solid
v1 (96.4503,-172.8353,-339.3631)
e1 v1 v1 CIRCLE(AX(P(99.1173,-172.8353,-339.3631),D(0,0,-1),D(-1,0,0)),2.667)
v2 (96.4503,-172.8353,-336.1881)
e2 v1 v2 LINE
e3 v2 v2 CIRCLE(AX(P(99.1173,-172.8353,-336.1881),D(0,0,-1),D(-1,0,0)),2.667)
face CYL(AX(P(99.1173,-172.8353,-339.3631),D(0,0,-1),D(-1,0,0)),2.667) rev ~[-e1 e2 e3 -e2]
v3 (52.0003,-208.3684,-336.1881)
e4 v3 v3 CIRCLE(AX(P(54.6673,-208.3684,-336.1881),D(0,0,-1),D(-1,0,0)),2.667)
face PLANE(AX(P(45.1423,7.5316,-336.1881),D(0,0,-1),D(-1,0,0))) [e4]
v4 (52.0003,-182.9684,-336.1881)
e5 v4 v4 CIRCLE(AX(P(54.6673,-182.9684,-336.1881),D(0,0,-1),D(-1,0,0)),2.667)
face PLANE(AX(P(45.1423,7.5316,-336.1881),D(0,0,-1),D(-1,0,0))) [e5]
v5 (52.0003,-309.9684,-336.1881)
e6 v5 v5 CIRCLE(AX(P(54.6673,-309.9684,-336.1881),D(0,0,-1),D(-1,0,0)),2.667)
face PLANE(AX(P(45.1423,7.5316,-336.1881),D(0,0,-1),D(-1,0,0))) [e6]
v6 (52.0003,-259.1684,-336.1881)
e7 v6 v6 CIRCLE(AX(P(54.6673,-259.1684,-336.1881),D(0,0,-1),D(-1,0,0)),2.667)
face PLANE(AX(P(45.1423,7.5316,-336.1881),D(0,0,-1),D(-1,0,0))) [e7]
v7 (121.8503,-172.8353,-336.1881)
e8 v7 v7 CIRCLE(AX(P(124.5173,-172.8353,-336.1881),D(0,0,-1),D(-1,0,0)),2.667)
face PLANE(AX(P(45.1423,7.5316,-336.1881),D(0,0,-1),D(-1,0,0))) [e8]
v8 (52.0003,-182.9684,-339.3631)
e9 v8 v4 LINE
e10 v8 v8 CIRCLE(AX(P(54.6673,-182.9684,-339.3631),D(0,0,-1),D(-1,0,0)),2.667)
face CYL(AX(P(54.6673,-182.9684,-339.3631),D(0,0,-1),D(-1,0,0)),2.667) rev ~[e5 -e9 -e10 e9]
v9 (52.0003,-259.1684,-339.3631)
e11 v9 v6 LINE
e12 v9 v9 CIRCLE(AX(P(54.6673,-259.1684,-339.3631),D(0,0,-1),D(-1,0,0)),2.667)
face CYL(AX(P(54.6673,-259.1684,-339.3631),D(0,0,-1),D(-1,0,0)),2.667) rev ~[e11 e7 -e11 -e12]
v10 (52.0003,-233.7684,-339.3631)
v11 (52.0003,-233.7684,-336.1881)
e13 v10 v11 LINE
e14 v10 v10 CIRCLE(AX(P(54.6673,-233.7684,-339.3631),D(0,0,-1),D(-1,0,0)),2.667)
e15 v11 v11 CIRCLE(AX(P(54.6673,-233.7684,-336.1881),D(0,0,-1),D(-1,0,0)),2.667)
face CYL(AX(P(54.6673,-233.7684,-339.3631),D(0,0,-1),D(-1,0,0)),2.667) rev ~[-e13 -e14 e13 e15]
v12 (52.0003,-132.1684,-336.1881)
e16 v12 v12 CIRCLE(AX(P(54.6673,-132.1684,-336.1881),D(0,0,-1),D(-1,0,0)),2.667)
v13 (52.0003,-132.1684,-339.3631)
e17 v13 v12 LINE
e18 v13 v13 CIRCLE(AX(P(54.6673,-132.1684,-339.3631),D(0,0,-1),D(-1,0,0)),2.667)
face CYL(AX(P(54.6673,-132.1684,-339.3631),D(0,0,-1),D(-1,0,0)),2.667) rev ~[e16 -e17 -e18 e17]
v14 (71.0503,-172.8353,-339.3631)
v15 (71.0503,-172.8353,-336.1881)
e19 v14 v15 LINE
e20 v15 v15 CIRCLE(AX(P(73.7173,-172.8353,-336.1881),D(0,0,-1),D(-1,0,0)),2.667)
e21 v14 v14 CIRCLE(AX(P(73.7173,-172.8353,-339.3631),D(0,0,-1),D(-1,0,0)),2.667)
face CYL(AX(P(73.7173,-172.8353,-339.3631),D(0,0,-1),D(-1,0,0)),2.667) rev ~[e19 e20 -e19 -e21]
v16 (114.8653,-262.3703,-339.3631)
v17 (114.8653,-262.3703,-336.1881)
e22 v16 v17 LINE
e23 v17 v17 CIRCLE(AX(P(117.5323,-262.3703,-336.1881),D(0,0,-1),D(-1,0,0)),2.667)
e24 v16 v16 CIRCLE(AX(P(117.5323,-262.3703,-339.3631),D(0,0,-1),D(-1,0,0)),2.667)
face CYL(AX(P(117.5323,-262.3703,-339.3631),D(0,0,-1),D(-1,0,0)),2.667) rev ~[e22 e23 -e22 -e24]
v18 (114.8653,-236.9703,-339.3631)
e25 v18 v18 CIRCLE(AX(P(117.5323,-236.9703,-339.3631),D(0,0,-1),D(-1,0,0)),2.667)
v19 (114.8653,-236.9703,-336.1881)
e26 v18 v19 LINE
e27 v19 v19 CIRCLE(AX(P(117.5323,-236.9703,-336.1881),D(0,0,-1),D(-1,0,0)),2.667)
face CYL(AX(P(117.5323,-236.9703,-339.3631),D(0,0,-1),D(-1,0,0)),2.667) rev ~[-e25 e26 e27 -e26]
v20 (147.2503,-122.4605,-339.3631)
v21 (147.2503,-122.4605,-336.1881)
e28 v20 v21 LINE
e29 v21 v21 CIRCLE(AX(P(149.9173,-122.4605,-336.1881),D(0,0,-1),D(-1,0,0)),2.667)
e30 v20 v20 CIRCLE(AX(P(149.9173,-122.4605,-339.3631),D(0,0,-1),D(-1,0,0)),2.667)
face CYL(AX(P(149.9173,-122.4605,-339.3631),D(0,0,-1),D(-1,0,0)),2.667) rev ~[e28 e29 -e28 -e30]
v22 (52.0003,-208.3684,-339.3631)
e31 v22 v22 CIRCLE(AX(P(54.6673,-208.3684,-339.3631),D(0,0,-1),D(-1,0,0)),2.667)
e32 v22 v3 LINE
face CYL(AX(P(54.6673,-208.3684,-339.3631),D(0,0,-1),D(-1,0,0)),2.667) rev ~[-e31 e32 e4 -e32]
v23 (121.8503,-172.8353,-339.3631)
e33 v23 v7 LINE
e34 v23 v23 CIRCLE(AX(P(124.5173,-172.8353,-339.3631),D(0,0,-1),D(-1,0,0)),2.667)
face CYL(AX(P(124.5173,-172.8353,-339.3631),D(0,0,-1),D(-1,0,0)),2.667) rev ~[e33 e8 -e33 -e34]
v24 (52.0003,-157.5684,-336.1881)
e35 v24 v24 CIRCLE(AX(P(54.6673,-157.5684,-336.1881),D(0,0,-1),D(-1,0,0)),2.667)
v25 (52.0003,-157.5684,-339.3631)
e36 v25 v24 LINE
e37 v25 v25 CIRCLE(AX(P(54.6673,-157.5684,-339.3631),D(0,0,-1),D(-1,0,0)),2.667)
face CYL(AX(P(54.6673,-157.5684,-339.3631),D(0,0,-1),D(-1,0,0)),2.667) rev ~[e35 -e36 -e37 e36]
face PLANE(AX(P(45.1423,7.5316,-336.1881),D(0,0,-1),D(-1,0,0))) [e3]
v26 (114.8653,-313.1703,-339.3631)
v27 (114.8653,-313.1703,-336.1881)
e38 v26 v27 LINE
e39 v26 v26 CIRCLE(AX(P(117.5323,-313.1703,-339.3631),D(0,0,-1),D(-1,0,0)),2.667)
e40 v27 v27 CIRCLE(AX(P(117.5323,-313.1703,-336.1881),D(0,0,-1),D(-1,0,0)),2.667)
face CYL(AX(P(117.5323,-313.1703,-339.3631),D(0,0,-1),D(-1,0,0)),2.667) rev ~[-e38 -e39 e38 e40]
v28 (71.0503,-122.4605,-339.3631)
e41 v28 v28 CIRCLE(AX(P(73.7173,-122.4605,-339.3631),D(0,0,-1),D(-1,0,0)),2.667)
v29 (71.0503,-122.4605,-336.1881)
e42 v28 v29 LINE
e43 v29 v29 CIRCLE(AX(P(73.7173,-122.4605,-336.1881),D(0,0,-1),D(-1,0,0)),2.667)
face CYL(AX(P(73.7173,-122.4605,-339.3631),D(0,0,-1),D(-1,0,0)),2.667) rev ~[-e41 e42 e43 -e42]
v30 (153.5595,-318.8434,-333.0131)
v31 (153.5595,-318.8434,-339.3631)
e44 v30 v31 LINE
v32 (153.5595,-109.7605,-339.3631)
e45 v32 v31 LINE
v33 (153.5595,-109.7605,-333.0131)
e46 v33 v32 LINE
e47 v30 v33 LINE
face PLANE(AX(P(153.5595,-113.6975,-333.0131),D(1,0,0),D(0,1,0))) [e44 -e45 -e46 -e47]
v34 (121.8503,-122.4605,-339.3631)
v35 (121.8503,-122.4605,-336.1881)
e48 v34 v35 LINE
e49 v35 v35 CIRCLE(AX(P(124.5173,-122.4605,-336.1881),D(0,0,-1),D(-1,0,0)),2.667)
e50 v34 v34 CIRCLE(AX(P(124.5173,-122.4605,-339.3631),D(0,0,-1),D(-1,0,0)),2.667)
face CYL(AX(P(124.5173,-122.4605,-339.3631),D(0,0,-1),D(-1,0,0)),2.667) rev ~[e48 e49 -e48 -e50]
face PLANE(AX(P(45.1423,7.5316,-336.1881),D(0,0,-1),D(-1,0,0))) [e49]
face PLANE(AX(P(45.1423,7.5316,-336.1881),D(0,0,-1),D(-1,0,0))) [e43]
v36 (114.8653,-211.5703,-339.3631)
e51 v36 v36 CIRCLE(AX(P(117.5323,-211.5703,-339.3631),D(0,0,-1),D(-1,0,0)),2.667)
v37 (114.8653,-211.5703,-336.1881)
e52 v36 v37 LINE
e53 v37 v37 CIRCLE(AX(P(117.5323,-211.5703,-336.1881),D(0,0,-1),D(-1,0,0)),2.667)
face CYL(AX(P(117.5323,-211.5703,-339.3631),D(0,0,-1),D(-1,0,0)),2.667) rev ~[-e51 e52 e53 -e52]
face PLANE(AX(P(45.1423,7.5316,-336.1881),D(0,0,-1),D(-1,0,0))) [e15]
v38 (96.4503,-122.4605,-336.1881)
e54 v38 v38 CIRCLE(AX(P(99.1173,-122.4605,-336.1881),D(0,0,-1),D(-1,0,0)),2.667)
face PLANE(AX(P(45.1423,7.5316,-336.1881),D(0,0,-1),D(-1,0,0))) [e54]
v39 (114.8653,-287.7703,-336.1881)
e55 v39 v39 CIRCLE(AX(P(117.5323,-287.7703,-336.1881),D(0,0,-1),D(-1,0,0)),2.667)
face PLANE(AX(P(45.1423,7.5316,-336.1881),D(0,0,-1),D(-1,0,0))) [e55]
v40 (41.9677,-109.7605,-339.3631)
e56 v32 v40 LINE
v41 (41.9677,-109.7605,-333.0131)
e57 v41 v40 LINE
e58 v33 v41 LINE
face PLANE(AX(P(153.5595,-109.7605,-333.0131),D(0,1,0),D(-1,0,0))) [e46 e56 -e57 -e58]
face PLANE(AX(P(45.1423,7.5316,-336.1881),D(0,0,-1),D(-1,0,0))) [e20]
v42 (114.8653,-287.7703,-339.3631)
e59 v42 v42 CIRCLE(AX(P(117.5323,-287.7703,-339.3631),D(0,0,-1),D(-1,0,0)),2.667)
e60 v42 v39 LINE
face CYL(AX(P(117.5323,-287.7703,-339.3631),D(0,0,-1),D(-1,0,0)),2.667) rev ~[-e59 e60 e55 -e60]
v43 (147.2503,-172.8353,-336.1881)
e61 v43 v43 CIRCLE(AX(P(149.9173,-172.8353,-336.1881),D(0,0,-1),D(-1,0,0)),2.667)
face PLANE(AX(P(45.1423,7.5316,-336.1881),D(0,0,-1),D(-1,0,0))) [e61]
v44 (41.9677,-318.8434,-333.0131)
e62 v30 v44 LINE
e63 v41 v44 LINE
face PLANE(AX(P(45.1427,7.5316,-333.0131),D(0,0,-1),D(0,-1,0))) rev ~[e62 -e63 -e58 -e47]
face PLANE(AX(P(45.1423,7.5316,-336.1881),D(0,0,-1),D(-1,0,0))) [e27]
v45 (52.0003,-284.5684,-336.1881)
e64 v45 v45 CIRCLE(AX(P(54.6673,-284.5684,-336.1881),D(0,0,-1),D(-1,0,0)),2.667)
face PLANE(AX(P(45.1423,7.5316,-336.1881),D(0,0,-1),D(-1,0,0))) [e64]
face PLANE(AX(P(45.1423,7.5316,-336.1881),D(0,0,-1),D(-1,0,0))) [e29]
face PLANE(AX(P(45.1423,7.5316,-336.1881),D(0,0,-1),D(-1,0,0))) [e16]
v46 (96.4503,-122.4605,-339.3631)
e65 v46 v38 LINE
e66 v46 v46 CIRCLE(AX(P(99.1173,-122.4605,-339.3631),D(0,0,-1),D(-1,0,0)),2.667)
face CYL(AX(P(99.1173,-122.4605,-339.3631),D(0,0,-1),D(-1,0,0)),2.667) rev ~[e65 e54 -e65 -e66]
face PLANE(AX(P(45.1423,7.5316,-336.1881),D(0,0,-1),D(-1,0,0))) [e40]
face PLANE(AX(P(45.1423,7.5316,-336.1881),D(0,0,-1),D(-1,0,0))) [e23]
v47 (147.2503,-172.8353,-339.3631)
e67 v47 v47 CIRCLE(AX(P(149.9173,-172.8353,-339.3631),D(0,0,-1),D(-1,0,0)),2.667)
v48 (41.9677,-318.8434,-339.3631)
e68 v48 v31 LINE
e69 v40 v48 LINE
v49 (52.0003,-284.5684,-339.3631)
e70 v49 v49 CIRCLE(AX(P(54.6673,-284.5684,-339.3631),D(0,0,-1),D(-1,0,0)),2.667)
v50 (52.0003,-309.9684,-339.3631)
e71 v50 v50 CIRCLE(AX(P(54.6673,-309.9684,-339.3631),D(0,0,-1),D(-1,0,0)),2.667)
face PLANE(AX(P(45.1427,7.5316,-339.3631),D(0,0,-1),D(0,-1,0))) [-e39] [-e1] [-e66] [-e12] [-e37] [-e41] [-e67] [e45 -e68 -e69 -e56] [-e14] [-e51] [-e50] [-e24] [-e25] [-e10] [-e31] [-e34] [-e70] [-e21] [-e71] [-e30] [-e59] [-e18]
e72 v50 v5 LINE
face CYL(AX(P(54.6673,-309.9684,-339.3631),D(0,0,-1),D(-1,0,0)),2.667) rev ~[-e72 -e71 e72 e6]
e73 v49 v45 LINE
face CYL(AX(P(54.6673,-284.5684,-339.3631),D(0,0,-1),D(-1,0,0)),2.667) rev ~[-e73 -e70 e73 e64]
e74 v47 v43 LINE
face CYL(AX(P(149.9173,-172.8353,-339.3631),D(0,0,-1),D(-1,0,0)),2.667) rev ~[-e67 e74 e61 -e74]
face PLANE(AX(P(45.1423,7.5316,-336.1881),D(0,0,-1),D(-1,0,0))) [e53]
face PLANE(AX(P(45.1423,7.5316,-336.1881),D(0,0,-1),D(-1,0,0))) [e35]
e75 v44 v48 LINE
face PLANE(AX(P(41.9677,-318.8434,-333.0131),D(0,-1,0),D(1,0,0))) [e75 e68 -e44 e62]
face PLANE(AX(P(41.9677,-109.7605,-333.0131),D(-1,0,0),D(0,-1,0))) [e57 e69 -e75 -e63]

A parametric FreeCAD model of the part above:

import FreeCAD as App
import Part
import Sketcher

V = App.Vector
Q = App.Units.Quantity

doc = App.newDocument("Part")
body = doc.addObject("PartDesign::Body", "Body")

# Sketch on XY plane
sketch1 = body.newObject("Sketcher::SketchObject", "Sketch")
sketch1.AttachmentSupport = (doc.getObject("XY_Plane"), [""])
sketch1.MapMode = "FlatFace"
sketch1.AttachmentOffset = App.Placement(V(0, 0, -333.0131), App.Rotation())
sketch1.addGeometry(Part.LineSegment(V(42, -319, 0), V(42, -110, 0)), False)
sketch1.addGeometry(Part.LineSegment(V(42, -110, 0), V(154, -110, 0)), False)
sketch1.addGeometry(Part.LineSegment(V(154, -110, 0), V(154, -319, 0)), False)
sketch1.addGeometry(Part.LineSegment(V(154, -319, 0), V(42, -319, 0)), False)
sketch1.addConstraint(Sketcher.Constraint("Coincident", 0, 2, 1, 1))
sketch1.addConstraint(Sketcher.Constraint("Coincident", 1, 2, 2, 1))
sketch1.addConstraint(Sketcher.Constraint("Coincident", 2, 2, 3, 1))
sketch1.addConstraint(Sketcher.Constraint("Coincident", 3, 2, 0, 1))
sketch1.addConstraint(Sketcher.Constraint("Vertical", 0))
sketch1.addConstraint(Sketcher.Constraint("Horizontal", 1))
sketch1.addConstraint(Sketcher.Constraint("Vertical", 2))
sketch1.addConstraint(Sketcher.Constraint("Horizontal", 3))
sketch1.addConstraint(Sketcher.Constraint("DistanceY", 0, 1, 0, 2, Q("8.2316 in")))
sketch1.addConstraint(Sketcher.Constraint("DistanceX", 1, 1, 1, 2, 111.5918))
sketch1.addConstraint(Sketcher.Constraint("DistanceY", 2, 2, -1, 1, Q("12.5529 in")))
sketch1.addConstraint(Sketcher.Constraint("DistanceX", -1, 1, 0, 2, 41.9677))
pad1 = body.newObject("PartDesign::Pad", "Pad")
pad1.Profile = sketch1
pad1.Length = Q("0.25 in")
pad1.Reversed = True

# Sketch on XY plane
sketch2 = body.newObject("Sketcher::SketchObject", "Sketch001")
sketch2.AttachmentSupport = (doc.getObject("XY_Plane"), [""])
sketch2.MapMode = "FlatFace"
sketch2.AttachmentOffset = App.Placement(V(0, 0, -339.3631), App.Rotation())
sketch2.addGeometry(Part.Circle(V(54.7, -310, 0), V(0, 0, 1), 2.7), False)
sketch2.addGeometry(Part.Circle(V(54.7, -284.6, 0), V(0, 0, 1), 2.7), False)
sketch2.addGeometry(Part.Circle(V(54.7, -259.2, 0), V(0, 0, 1), 2.7), False)
sketch2.addGeometry(Part.Circle(V(54.7, -233.8, 0), V(0, 0, 1), 2.7), False)
sketch2.addGeometry(Part.Circle(V(54.7, -208.4, 0), V(0, 0, 1), 2.7), False)
sketch2.addGeometry(Part.Circle(V(54.7, -183, 0), V(0, 0, 1), 2.7), False)
sketch2.addGeometry(Part.Circle(V(54.7, -157.6, 0), V(0, 0, 1), 2.7), False)
sketch2.addGeometry(Part.Circle(V(54.7, -132.2, 0), V(0, 0, 1), 2.7), False)
sketch2.addGeometry(Part.Circle(V(117.5, -211.6, 0), V(0, 0, 1), 2.7), False)
sketch2.addGeometry(Part.Circle(V(117.5, -237, 0), V(0, 0, 1), 2.7), False)
sketch2.addGeometry(Part.Circle(V(117.5, -262.4, 0), V(0, 0, 1), 2.7), False)
sketch2.addGeometry(Part.Circle(V(117.5, -287.8, 0), V(0, 0, 1), 2.7), False)
sketch2.addGeometry(Part.Circle(V(117.5, -313.2, 0), V(0, 0, 1), 2.7), False)
sketch2.addGeometry(Part.Circle(V(73.7, -172.8, 0), V(0, 0, 1), 2.7), False)
sketch2.addGeometry(Part.Circle(V(99.1, -172.8, 0), V(0, 0, 1), 2.7), False)
sketch2.addGeometry(Part.Circle(V(124.5, -172.8, 0), V(0, 0, 1), 2.7), False)
sketch2.addGeometry(Part.Circle(V(149.9, -172.8, 0), V(0, 0, 1), 2.7), False)
sketch2.addGeometry(Part.Circle(V(149.9, -122.5, 0), V(0, 0, 1), 2.7), False)
sketch2.addGeometry(Part.Circle(V(124.5, -122.5, 0), V(0, 0, 1), 2.7), False)
sketch2.addGeometry(Part.Circle(V(99.1, -122.5, 0), V(0, 0, 1), 2.7), False)
sketch2.addGeometry(Part.Circle(V(73.7, -122.5, 0), V(0, 0, 1), 2.7), False)
sketch2.addConstraint(Sketcher.Constraint("Equal", 0, 1))
sketch2.addConstraint(Sketcher.Constraint("Equal", 1, 2))
sketch2.addConstraint(Sketcher.Constraint("Equal", 2, 3))
sketch2.addConstraint(Sketcher.Constraint("Equal", 3, 4))
sketch2.addConstraint(Sketcher.Constraint("Equal", 4, 5))
sketch2.addConstraint(Sketcher.Constraint("Equal", 5, 6))
sketch2.addConstraint(Sketcher.Constraint("Equal", 6, 7))
sketch2.addConstraint(Sketcher.Constraint("Equal", 7, 8))
sketch2.addConstraint(Sketcher.Constraint("Equal", 8, 9))
sketch2.addConstraint(Sketcher.Constraint("Equal", 9, 10))
sketch2.addConstraint(Sketcher.Constraint("Equal", 10, 11))
sketch2.addConstraint(Sketcher.Constraint("Equal", 11, 12))
sketch2.addConstraint(Sketcher.Constraint("Equal", 12, 13))
sketch2.addConstraint(Sketcher.Constraint("Equal", 13, 14))
sketch2.addConstraint(Sketcher.Constraint("Equal", 14, 15))
sketch2.addConstraint(Sketcher.Constraint("Equal", 15, 16))
sketch2.addConstraint(Sketcher.Constraint("Equal", 16, 17))
sketch2.addConstraint(Sketcher.Constraint("Equal", 17, 18))
sketch2.addConstraint(Sketcher.Constraint("Equal", 18, 19))
sketch2.addConstraint(Sketcher.Constraint("Equal", 19, 20))
sketch2.addConstraint(Sketcher.Constraint("Horizontal", 13, 3, 14, 3))
sketch2.addConstraint(Sketcher.Constraint("Horizontal", 14, 3, 15, 3))
sketch2.addConstraint(Sketcher.Constraint("Horizontal", 15, 3, 16, 3))
sketch2.addConstraint(Sketcher.Constraint("Horizontal", 17, 3, 18, 3))
sketch2.addConstraint(Sketcher.Constraint("Horizontal", 18, 3, 19, 3))
sketch2.addConstraint(Sketcher.Constraint("Horizontal", 19, 3, 20, 3))
sketch2.addConstraint(Sketcher.Constraint("Vertical", 0, 3, 1, 3))
sketch2.addConstraint(Sketcher.Constraint("Vertical", 1, 3, 2, 3))
sketch2.addConstraint(Sketcher.Constraint("Vertical", 2, 3, 3, 3))
sketch2.addConstraint(Sketcher.Constraint("Vertical", 3, 3, 4, 3))
sketch2.addConstraint(Sketcher.Constraint("Vertical", 4, 3, 5, 3))
sketch2.addConstraint(Sketcher.Constraint("Vertical", 5, 3, 6, 3))
sketch2.addConstraint(Sketcher.Constraint("Vertical", 6, 3, 7, 3))
sketch2.addConstraint(Sketcher.Constraint("Vertical", 8, 3, 9, 3))
sketch2.addConstraint(Sketcher.Constraint("Vertical", 9, 3, 10, 3))
sketch2.addConstraint(Sketcher.Constraint("Vertical", 10, 3, 11, 3))
sketch2.addConstraint(Sketcher.Constraint("Vertical", 11, 3, 12, 3))
sketch2.addConstraint(Sketcher.Constraint("Vertical", 16, 3, 17, 3))
sketch2.addConstraint(Sketcher.Constraint("Vertical", 15, 3, 18, 3))
sketch2.addConstraint(Sketcher.Constraint("Vertical", 14, 3, 19, 3))
sketch2.addConstraint(Sketcher.Constraint("Vertical", 13, 3, 20, 3))
sketch2.addConstraint(Sketcher.Constraint("Diameter", 0, Q("0.21 in")))
sketch2.addConstraint(Sketcher.Constraint("DistanceY", 0, 3, 1, 3, Q("1 in")))
sketch2.addConstraint(Sketcher.Constraint("DistanceY", 1, 3, 2, 3, Q("1 in")))
sketch2.addConstraint(Sketcher.Constraint("DistanceY", 2, 3, 3, 3, Q("1 in")))
sketch2.addConstraint(Sketcher.Constraint("DistanceY", 3, 3, 4, 3, Q("1 in")))
sketch2.addConstraint(Sketcher.Constraint("DistanceY", 4, 3, 5, 3, Q("1 in")))
sketch2.addConstraint(Sketcher.Constraint("DistanceY", 5, 3, 6, 3, Q("1 in")))
sketch2.addConstraint(Sketcher.Constraint("DistanceY", 6, 3, 7, 3, Q("1 in")))
sketch2.addConstraint(Sketcher.Constraint("DistanceY", 9, 3, 8, 3, Q("1 in")))
sketch2.addConstraint(Sketcher.Constraint("DistanceY", 10, 3, 9, 3, Q("1 in")))
sketch2.addConstraint(Sketcher.Constraint("DistanceY", 11, 3, 10, 3, Q("1 in")))
sketch2.addConstraint(Sketcher.Constraint("DistanceY", 12, 3, 11, 3, Q("1 in")))
sketch2.addConstraint(Sketcher.Constraint("DistanceX", 13, 3, 14, 3, Q("1 in")))
sketch2.addConstraint(Sketcher.Constraint("DistanceX", 14, 3, 15, 3, Q("1 in")))
sketch2.addConstraint(Sketcher.Constraint("DistanceX", 15, 3, 16, 3, Q("1 in")))
sketch2.addConstraint(Sketcher.Constraint("DistanceX", 5, 3, 13, 3, Q("0.75 in")))
sketch2.addConstraint(Sketcher.Constraint("DistanceX", 4, 3, 8, 3, Q("2.475 in")))
sketch2.addConstraint(Sketcher.Constraint("DistanceY", 8, 3, 13, 3, Q("1.525 in")))
sketch2.addConstraint(Sketcher.Constraint("DistanceY", 7, 3, 18, 3, Q("0.3822 in")))
sketch2.addConstraint(Sketcher.Constraint("DistanceX", -1, 1, 0, 3, 54.6673))
sketch2.addConstraint(Sketcher.Constraint("DistanceY", 0, 3, -1, 1, 309.9684))
sketch2.addConstraint(Sketcher.Constraint("DistanceY", 8, 3, -1, 1, 211.5703))
pocket1 = body.newObject("PartDesign::Pocket", "Pocket")
pocket1.Profile = sketch2
pocket1.Length = Q("0.25 in")
pocket1.Midplane = True

doc.recompute()
